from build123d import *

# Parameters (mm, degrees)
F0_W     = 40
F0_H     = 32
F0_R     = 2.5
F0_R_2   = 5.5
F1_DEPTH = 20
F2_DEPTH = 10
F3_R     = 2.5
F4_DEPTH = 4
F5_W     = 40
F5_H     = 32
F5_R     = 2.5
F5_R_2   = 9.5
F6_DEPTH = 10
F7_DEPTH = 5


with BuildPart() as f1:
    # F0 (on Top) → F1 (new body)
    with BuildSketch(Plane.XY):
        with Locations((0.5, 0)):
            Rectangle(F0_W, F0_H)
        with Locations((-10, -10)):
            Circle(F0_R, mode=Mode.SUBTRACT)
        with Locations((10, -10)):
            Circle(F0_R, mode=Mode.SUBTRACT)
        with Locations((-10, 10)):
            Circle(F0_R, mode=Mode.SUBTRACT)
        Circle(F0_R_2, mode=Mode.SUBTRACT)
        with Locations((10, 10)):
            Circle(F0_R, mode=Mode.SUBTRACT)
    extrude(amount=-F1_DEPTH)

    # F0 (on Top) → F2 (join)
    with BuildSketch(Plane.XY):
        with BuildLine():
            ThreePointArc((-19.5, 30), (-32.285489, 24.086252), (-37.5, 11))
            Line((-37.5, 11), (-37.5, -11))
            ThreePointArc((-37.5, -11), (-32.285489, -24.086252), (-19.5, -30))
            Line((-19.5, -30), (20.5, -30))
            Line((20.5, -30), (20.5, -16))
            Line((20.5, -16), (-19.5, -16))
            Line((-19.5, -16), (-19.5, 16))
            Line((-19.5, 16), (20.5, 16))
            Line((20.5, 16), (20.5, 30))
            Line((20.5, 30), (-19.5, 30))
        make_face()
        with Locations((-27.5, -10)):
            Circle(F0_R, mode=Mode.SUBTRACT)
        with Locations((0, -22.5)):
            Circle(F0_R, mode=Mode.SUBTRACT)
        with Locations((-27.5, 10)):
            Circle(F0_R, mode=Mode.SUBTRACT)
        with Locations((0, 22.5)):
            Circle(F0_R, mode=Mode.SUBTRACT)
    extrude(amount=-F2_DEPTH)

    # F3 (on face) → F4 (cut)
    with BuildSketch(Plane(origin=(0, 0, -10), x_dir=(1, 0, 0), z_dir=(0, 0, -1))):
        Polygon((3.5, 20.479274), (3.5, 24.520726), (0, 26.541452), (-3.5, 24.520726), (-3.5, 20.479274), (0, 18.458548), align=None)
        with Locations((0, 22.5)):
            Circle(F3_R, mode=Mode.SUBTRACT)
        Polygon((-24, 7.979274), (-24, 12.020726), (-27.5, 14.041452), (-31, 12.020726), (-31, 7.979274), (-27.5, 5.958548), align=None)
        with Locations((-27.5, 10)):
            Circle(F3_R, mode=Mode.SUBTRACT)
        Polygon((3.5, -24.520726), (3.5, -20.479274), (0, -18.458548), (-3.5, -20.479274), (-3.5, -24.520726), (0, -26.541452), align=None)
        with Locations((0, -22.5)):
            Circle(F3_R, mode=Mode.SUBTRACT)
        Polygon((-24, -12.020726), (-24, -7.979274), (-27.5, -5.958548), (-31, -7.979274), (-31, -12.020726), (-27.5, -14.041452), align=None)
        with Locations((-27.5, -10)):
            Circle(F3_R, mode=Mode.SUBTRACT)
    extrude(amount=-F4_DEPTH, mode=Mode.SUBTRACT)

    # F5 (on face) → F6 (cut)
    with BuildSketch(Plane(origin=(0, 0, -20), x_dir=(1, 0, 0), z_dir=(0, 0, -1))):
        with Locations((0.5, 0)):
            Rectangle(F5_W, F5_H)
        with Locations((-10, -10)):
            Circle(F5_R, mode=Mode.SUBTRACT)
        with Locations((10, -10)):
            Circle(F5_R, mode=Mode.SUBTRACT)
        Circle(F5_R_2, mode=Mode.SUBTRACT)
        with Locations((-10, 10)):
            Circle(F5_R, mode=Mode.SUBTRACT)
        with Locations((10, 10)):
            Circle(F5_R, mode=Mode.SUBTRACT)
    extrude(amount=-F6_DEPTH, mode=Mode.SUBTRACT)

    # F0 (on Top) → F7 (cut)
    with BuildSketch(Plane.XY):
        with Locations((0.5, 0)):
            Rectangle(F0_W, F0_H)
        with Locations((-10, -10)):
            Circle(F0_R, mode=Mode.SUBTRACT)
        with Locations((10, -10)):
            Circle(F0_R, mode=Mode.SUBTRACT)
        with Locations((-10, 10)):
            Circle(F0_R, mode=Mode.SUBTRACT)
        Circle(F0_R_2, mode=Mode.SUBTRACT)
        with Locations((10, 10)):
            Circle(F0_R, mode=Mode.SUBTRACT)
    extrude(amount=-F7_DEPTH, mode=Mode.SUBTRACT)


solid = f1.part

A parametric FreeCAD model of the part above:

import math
import FreeCAD as App
import Part
import Sketcher
from FreeCAD import Vector
Q = App.Units.Quantity

doc = App.newDocument("Part")
body = doc.addObject("PartDesign::Body", "Body")

sketch1 = body.newObject("Sketcher::SketchObject", "Sketch")
sketch1.AttachmentSupport = (doc.getObject("XY_Plane"), [""])
sketch1.MapMode = "FlatFace"
sketch1.addGeometry([
    Part.LineSegment(Vector(-19.5, 16, 0), Vector(-19.5, -16, 0)),
    Part.LineSegment(Vector(-19.5, -16, 0), Vector(20.5, -16, 0)),
    Part.LineSegment(Vector(20.5, -16, 0), Vector(20.5, 16, 0)),
    Part.LineSegment(Vector(20.5, 16, 0), Vector(-19.5, 16, 0)),
    Part.Circle(Vector(-10, -10, 0), Vector(0, 0, 1), 2.5),
    Part.Circle(Vector(10, -10, 0), Vector(0, 0, 1), 2.5),
    Part.Circle(Vector(-10, 10, 0), Vector(0, 0, 1), 2.5),
    Part.Circle(Vector(0, 0, 0), Vector(0, 0, 1), 5.5),
    Part.Circle(Vector(10, 10, 0), Vector(0, 0, 1), 2.5),
], False)
sketch1.addConstraint([
    Sketcher.Constraint("Coincident", 0, 2, 1, 1),
    Sketcher.Constraint("Coincident", 1, 2, 2, 1),
    Sketcher.Constraint("Coincident", 2, 2, 3, 1),
    Sketcher.Constraint("Coincident", 3, 2, 0, 1),
    Sketcher.Constraint("Vertical", 0),
    Sketcher.Constraint("Horizontal", 1),
    Sketcher.Constraint("Vertical", 2),
    Sketcher.Constraint("Horizontal", 3),
    Sketcher.Constraint("Coincident", 7, 3, -1, 1),
    Sketcher.Constraint("Equal", 4, 5),
    Sketcher.Constraint("Equal", 5, 6),
    Sketcher.Constraint("Equal", 6, 8),
    Sketcher.Constraint("Symmetric", 5, 3, 6, 3, -1, 1),
    Sketcher.Constraint("Symmetric", 4, 3, 8, 3, -1, 1),
    Sketcher.Constraint("Symmetric", 4, 3, 5, 3, -2),
    Sketcher.Constraint("Diameter", 4, Q("5 mm")),
    Sketcher.Constraint("Diameter", 7, Q("11 mm")),
    Sketcher.Constraint("DistanceX", 1, 1, 1, 2, Q("40 mm")),
    Sketcher.Constraint("DistanceY", 0, 2, 0, 1, Q("32 mm")),
    Sketcher.Constraint("DistanceX", 4, 3, -1, 1, Q("10 mm")),
    Sketcher.Constraint("DistanceY", 4, 3, -1, 1, Q("10 mm")),
    Sketcher.Constraint("DistanceY", 0, 2, -1, 1, Q("16 mm")),
    Sketcher.Constraint("DistanceX", 0, 2, -1, 1, Q("19.5 mm")),
])
pad1 = body.newObject("PartDesign::Pad", "Pad")
pad1.Profile = sketch1
pad1.Length = 20
pad1.Reversed = True

sketch2 = body.newObject("Sketcher::SketchObject", "Sketch001")
sketch2.AttachmentSupport = (doc.getObject("XY_Plane"), [""])
sketch2.MapMode = "FlatFace"
sketch2.addGeometry([
    Part.ArcOfCircle(Part.Circle(Vector(-18.5, 11, 0), Vector(0, 0, 1), 19), math.radians(93), math.radians(180)),
    Part.LineSegment(Vector(-37.5, 11, 0), Vector(-37.5, -11, 0)),
    Part.ArcOfCircle(Part.Circle(Vector(-18.5, -11, 0), Vector(0, 0, 1), 19), math.radians(180), math.radians(267)),
    Part.LineSegment(Vector(-19.5, -30, 0), Vector(20.5, -30, 0)),
    Part.LineSegment(Vector(20.5, -30, 0), Vector(20.5, -16, 0)),
    Part.LineSegment(Vector(20.5, -16, 0), Vector(-19.5, -16, 0)),
    Part.LineSegment(Vector(-19.5, -16, 0), Vector(-19.5, 16, 0)),
    Part.LineSegment(Vector(-19.5, 16, 0), Vector(20.5, 16, 0)),
    Part.LineSegment(Vector(20.5, 16, 0), Vector(20.5, 30, 0)),
    Part.LineSegment(Vector(20.5, 30, 0), Vector(-19.5, 30, 0)),
    Part.Circle(Vector(-27.5, -10, 0), Vector(0, 0, 1), 2.5),
    Part.Circle(Vector(0, -22.5, 0), Vector(0, 0, 1), 2.5),
    Part.Circle(Vector(-27.5, 10, 0), Vector(0, 0, 1), 2.5),
    Part.Circle(Vector(0, 22.5, 0), Vector(0, 0, 1), 2.5),
], False)
sketch2.addConstraint([
    Sketcher.Constraint("Tangent", 0, 2, 1, 1),
    Sketcher.Constraint("Tangent", 1, 2, 2, 1),
    Sketcher.Constraint("Coincident", 2, 2, 3, 1),
    Sketcher.Constraint("Coincident", 3, 2, 4, 1),
    Sketcher.Constraint("Coincident", 4, 2, 5, 1),
    Sketcher.Constraint("Coincident", 5, 2, 6, 1),
    Sketcher.Constraint("Coincident", 6, 2, 7, 1),
    Sketcher.Constraint("Coincident", 7, 2, 8, 1),
    Sketcher.Constraint("Coincident", 8, 2, 9, 1),
    Sketcher.Constraint("Coincident", 9, 2, 0, 1),
    Sketcher.Constraint("Vertical", 1),
    Sketcher.Constraint("Horizontal", 3),
    Sketcher.Constraint("Vertical", 4),
    Sketcher.Constraint("Horizontal", 5),
    Sketcher.Constraint("Vertical", 6),
    Sketcher.Constraint("Horizontal", 7),
    Sketcher.Constraint("Vertical", 8),
    Sketcher.Constraint("Horizontal", 9),
    Sketcher.Constraint("Equal", 0, 2),
    Sketcher.Constraint("Equal", 10, 11),
    Sketcher.Constraint("Equal", 11, 12),
    Sketcher.Constraint("Equal", 12, 13),
    Sketcher.Constraint("Symmetric", 11, 3, 13, 3, -1, 1),
    Sketcher.Constraint("Symmetric", 10, 3, 12, 3, -1),
    Sketcher.Constraint("Symmetric", 4, 2, 7, 2, -1),
    Sketcher.Constraint("Symmetric", 2, 2, 9, 2, -1),
    Sketcher.Constraint("PointOnObject", 11, 3, -2),
    Sketcher.Constraint("Vertical", 2, 2, 5, 2),
    Sketcher.Constraint("Diameter", 10, Q("5 mm")),
    Sketcher.Constraint("DistanceX", 3, 1, 3, 2, Q("40 mm")),
    Sketcher.Constraint("DistanceY", 1, 2, 1, 1, Q("22 mm")),
    Sketcher.Constraint("DistanceY", 4, 1, 4, 2, Q("14 mm")),
    Sketcher.Constraint("DistanceY", 6, 1, 6, 2, Q("32 mm")),
    Sketcher.Constraint("DistanceY", 10, 3, -1, 1, Q("10 mm")),
    Sketcher.Constraint("DistanceY", 11, 3, 13, 3, Q("45 mm")),
    Sketcher.Constraint("DistanceX", 0, 2, 12, 3, Q("10 mm")),
    Sketcher.Constraint("DistanceX", 10, 3, 2, 2, Q("8 mm")),
    Sketcher.Constraint("DistanceX", 10, 3, -1, 1, Q("27.5 mm")),
])
pad2 = body.newObject("PartDesign::Pad", "Pad001")
pad2.Profile = sketch2
pad2.Length = 10
pad2.Reversed = True

sketch3 = body.newObject("Sketcher::SketchObject", "Sketch002")
sketch3.AttachmentSupport = (doc.getObject("XY_Plane"), [""])
sketch3.MapMode = "FlatFace"
sketch3.AttachmentOffset = App.Placement(Vector(0, 0, -10), App.Rotation())
sketch3.addGeometry([
    Part.LineSegment(Vector(3.5, -20.5, 0), Vector(3.5, -24.5, 0)),
    Part.LineSegment(Vector(3.5, -24.5, 0), Vector(0, -26.5, 0)),
    Part.LineSegment(Vector(0, -26.5, 0), Vector(-3.5, -24.5, 0)),
    Part.LineSegment(Vector(-3.5, -24.5, 0), Vector(-3.5, -20.5, 0)),
    Part.LineSegment(Vector(-3.5, -20.5, 0), Vector(0, -18.5, 0)),
    Part.LineSegment(Vector(0, -18.5, 0), Vector(3.5, -20.5, 0)),
    Part.Circle(Vector(0, -22.5, 0), Vector(0, 0, 1), 2.5),
    Part.LineSegment(Vector(-24, -8, 0), Vector(-24, -12, 0)),
    Part.LineSegment(Vector(-24, -12, 0), Vector(-27.5, -14, 0)),
    Part.LineSegment(Vector(-27.5, -14, 0), Vector(-31, -12, 0)),
    Part.LineSegment(Vector(-31, -12, 0), Vector(-31, -8, 0)),
    Part.LineSegment(Vector(-31, -8, 0), Vector(-27.5, -6, 0)),
    Part.LineSegment(Vector(-27.5, -6, 0), Vector(-24, -8, 0)),
    Part.Circle(Vector(-27.5, -10, 0), Vector(0, 0, 1), 2.5),
    Part.LineSegment(Vector(3.5, 24.5, 0), Vector(3.5, 20.5, 0)),
    Part.LineSegment(Vector(3.5, 20.5, 0), Vector(0, 18.5, 0)),
    Part.LineSegment(Vector(0, 18.5, 0), Vector(-3.5, 20.5, 0)),
    Part.LineSegment(Vector(-3.5, 20.5, 0), Vector(-3.5, 24.5, 0)),
    Part.LineSegment(Vector(-3.5, 24.5, 0), Vector(0, 26.5, 0)),
    Part.LineSegment(Vector(0, 26.5, 0), Vector(3.5, 24.5, 0)),
    Part.Circle(Vector(0, 22.5, 0), Vector(0, 0, 1), 2.5),
    Part.LineSegment(Vector(-24, 12, 0), Vector(-24, 8, 0)),
    Part.LineSegment(Vector(-24, 8, 0), Vector(-27.5, 6, 0)),
    Part.LineSegment(Vector(-27.5, 6, 0), Vector(-31, 8, 0)),
    Part.LineSegment(Vector(-31, 8, 0), Vector(-31, 12, 0)),
    Part.LineSegment(Vector(-31, 12, 0), Vector(-27.5, 14, 0)),
    Part.LineSegment(Vector(-27.5, 14, 0), Vector(-24, 12, 0)),
    Part.Circle(Vector(-27.5, 10, 0), Vector(0, 0, 1), 2.5),
], False)
sketch3.addConstraint([
    Sketcher.Constraint("Coincident", 0, 2, 1, 1),
    Sketcher.Constraint("Coincident", 1, 2, 2, 1),
    Sketcher.Constraint("Coincident", 2, 2, 3, 1),
    Sketcher.Constraint("Coincident", 3, 2, 4, 1),
    Sketcher.Constraint("Coincident", 4, 2, 5, 1),
    Sketcher.Constraint("Coincident", 5, 2, 0, 1),
    Sketcher.Constraint("Coincident", 7, 2, 8, 1),
    Sketcher.Constraint("Coincident", 8, 2, 9, 1),
    Sketcher.Constraint("Coincident", 9, 2, 10, 1),
    Sketcher.Constraint("Coincident", 10, 2, 11, 1),
    Sketcher.Constraint("Coincident", 11, 2, 12, 1),
    Sketcher.Constraint("Coincident", 12, 2, 7, 1),
    Sketcher.Constraint("Coincident", 14, 2, 15, 1),
    Sketcher.Constraint("Coincident", 15, 2, 16, 1),
    Sketcher.Constraint("Coincident", 16, 2, 17, 1),
    Sketcher.Constraint("Coincident", 17, 2, 18, 1),
    Sketcher.Constraint("Coincident", 18, 2, 19, 1),
    Sketcher.Constraint("Coincident", 19, 2, 14, 1),
    Sketcher.Constraint("Coincident", 21, 2, 22, 1),
    Sketcher.Constraint("Coincident", 22, 2, 23, 1),
    Sketcher.Constraint("Coincident", 23, 2, 24, 1),
    Sketcher.Constraint("Coincident", 24, 2, 25, 1),
    Sketcher.Constraint("Coincident", 25, 2, 26, 1),
    Sketcher.Constraint("Coincident", 26, 2, 21, 1),
    Sketcher.Constraint("Vertical", 0),
    Sketcher.Constraint("Vertical", 3),
    Sketcher.Constraint("Vertical", 7),
    Sketcher.Constraint("Vertical", 10),
    Sketcher.Constraint("Vertical", 14),
    Sketcher.Constraint("Vertical", 17),
    Sketcher.Constraint("Vertical", 21),
    Sketcher.Constraint("Vertical", 24),
    Sketcher.Constraint("Equal", 6, 13),
    Sketcher.Constraint("Equal", 13, 20),
    Sketcher.Constraint("Equal", 20, 27),
    Sketcher.Constraint("Symmetric", 6, 3, 20, 3, -1, 1),
    Sketcher.Constraint("Symmetric", 3, 2, 14, 2, -1, 1),
    Sketcher.Constraint("Symmetric", 4, 2, 15, 2, -1, 1),
    Sketcher.Constraint("Symmetric", 5, 2, 16, 2, -1, 1),
    Sketcher.Constraint("Symmetric", 1, 2, 18, 2, -1, 1),
    Sketcher.Constraint("Symmetric", 0, 2, 2, 2, -2),
    Sketcher.Constraint("Symmetric", 13, 3, 27, 3, -1),
    Sketcher.Constraint("Symmetric", 12, 2, 21, 2, -1),
    Sketcher.Constraint("Symmetric", 11, 2, 22, 2, -1),
    Sketcher.Constraint("Symmetric", 10, 2, 23, 2, -1),
    Sketcher.Constraint("Symmetric", 8, 2, 25, 2, -1),
    Sketcher.Constraint("PointOnObject", 6, 3, -2),
    Sketcher.Constraint("PointOnObject", 1, 2, -2),
    Sketcher.Constraint("PointOnObject", 4, 2, -2),
    Sketcher.Constraint("Parallel", 1, 4),
    Sketcher.Constraint("Parallel", 2, 5),
    Sketcher.Constraint("Parallel", 4, 8),
    Sketcher.Constraint("Parallel", 5, 9),
    Sketcher.Constraint("Parallel", 8, 11),
    Sketcher.Constraint("Parallel", 9, 12),
    Sketcher.Constraint("Parallel", 15, 18),
    Sketcher.Constraint("Parallel", 16, 19),
    Sketcher.Constraint("Parallel", 22, 25),
    Sketcher.Constraint("Parallel", 23, 26),
    Sketcher.Constraint("Horizontal", 7, 2, 9, 2),
    Sketcher.Constraint("Horizontal", 10, 2, 12, 2),
    Sketcher.Constraint("Vertical", 27, 3, 8, 2),
    Sketcher.Constraint("Equal", 3, 7),
    Sketcher.Constraint("Equal", 5, 8),
    Sketcher.Constraint("Diameter", 6, Q("5 mm")),
    Sketcher.Constraint("Angle", 1, Q("-149.999999 deg")),
    Sketcher.Constraint("DistanceY", 13, 3, -1, 1, Q("10 mm")),
    Sketcher.Constraint("DistanceX", 7, 2, -1, 1, Q("24 mm")),
    Sketcher.Constraint("DistanceX", 9, 2, -1, 1, Q("31 mm")),
    Sketcher.Constraint("DistanceY", 6, 3, 20, 3, Q("45 mm")),
    Sketcher.Constraint("DistanceY", 2, 2, 7, 2, Q("12.5 mm")),
    Sketcher.Constraint("DistanceY", 0, 2, 0, 1, Q("4.041452 mm")),
    Sketcher.Constraint("DistanceY", 1, 2, -1, 1, Q("26.541452 mm")),
])
pocket1 = body.newObject("PartDesign::Pocket", "Pocket")
pocket1.Profile = sketch3
pocket1.Length = 4
pocket1.Reversed = True

sketch4 = body.newObject("Sketcher::SketchObject", "Sketch003")
sketch4.AttachmentSupport = (doc.getObject("XY_Plane"), [""])
sketch4.MapMode = "FlatFace"
sketch4.AttachmentOffset = App.Placement(Vector(0, 0, -20), App.Rotation())
sketch4.addGeometry([
    Part.LineSegment(Vector(-19.5, -16, 0), Vector(-19.5, 16, 0)),
    Part.LineSegment(Vector(-19.5, 16, 0), Vector(20.5, 16, 0)),
    Part.LineSegment(Vector(20.5, 16, 0), Vector(20.5, -16, 0)),
    Part.LineSegment(Vector(20.5, -16, 0), Vector(-19.5, -16, 0)),
    Part.Circle(Vector(-10, 10, 0), Vector(0, 0, 1), 2.5),
    Part.Circle(Vector(10, 10, 0), Vector(0, 0, 1), 2.5),
    Part.Circle(Vector(-10, -10, 0), Vector(0, 0, 1), 2.5),
    Part.Circle(Vector(0, 0, 0), Vector(0, 0, 1), 9.5),
    Part.Circle(Vector(10, -10, 0), Vector(0, 0, 1), 2.5),
], False)
sketch4.addConstraint([
    Sketcher.Constraint("Coincident", 0, 2, 1, 1),
    Sketcher.Constraint("Coincident", 1, 2, 2, 1),
    Sketcher.Constraint("Coincident", 2, 2, 3, 1),
    Sketcher.Constraint("Coincident", 3, 2, 0, 1),
    Sketcher.Constraint("Vertical", 0),
    Sketcher.Constraint("Horizontal", 1),
    Sketcher.Constraint("Vertical", 2),
    Sketcher.Constraint("Horizontal", 3),
    Sketcher.Constraint("Coincident", 7, 3, -1, 1),
    Sketcher.Constraint("Equal", 4, 5),
    Sketcher.Constraint("Equal", 5, 6),
    Sketcher.Constraint("Equal", 6, 8),
    Sketcher.Constraint("Symmetric", 5, 3, 6, 3, -1, 1),
    Sketcher.Constraint("Symmetric", 4, 3, 8, 3, -1, 1),
    Sketcher.Constraint("Symmetric", 4, 3, 5, 3, -2),
    Sketcher.Constraint("Diameter", 4, Q("5 mm")),
    Sketcher.Constraint("Diameter", 7, Q("19 mm")),
    Sketcher.Constraint("DistanceX", 1, 1, 1, 2, Q("40 mm")),
    Sketcher.Constraint("DistanceY", 0, 1, 0, 2, Q("32 mm")),
    Sketcher.Constraint("DistanceX", 4, 3, -1, 1, Q("10 mm")),
    Sketcher.Constraint("DistanceY", -1, 1, 4, 3, Q("10 mm")),
    Sketcher.Constraint("DistanceY", -1, 1, 0, 2, Q("16 mm")),
    Sketcher.Constraint("DistanceX", 0, 2, -1, 1, Q("19.5 mm")),
])
pocket2 = body.newObject("PartDesign::Pocket", "Pocket001")
pocket2.Profile = sketch4
pocket2.Length = 10
pocket2.Reversed = True

sketch5 = body.newObject("Sketcher::SketchObject", "Sketch004")
sketch5.AttachmentSupport = (doc.getObject("XY_Plane"), [""])
sketch5.MapMode = "FlatFace"
sketch5.addGeometry([
    Part.LineSegment(Vector(-19.5, 16, 0), Vector(-19.5, -16, 0)),
    Part.LineSegment(Vector(-19.5, -16, 0), Vector(20.5, -16, 0)),
    Part.LineSegment(Vector(20.5, -16, 0), Vector(20.5, 16, 0)),
    Part.LineSegment(Vector(20.5, 16, 0), Vector(-19.5, 16, 0)),
    Part.Circle(Vector(-10, -10, 0), Vector(0, 0, 1), 2.5),
    Part.Circle(Vector(10, -10, 0), Vector(0, 0, 1), 2.5),
    Part.Circle(Vector(-10, 10, 0), Vector(0, 0, 1), 2.5),
    Part.Circle(Vector(0, 0, 0), Vector(0, 0, 1), 5.5),
    Part.Circle(Vector(10, 10, 0), Vector(0, 0, 1), 2.5),
], False)
sketch5.addConstraint([
    Sketcher.Constraint("Coincident", 0, 2, 1, 1),
    Sketcher.Constraint("Coincident", 1, 2, 2, 1),
    Sketcher.Constraint("Coincident", 2, 2, 3, 1),
    Sketcher.Constraint("Coincident", 3, 2, 0, 1),
    Sketcher.Constraint("Vertical", 0),
    Sketcher.Constraint("Horizontal", 1),
    Sketcher.Constraint("Vertical", 2),
    Sketcher.Constraint("Horizontal", 3),
    Sketcher.Constraint("Coincident", 7, 3, -1, 1),
    Sketcher.Constraint("Equal", 4, 5),
    Sketcher.Constraint("Equal", 5, 6),
    Sketcher.Constraint("Equal", 6, 8),
    Sketcher.Constraint("Symmetric", 5, 3, 6, 3, -1, 1),
    Sketcher.Constraint("Symmetric", 4, 3, 8, 3, -1, 1),
    Sketcher.Constraint("Symmetric", 4, 3, 5, 3, -2),
    Sketcher.Constraint("Diameter", 4, Q("5 mm")),
    Sketcher.Constraint("Diameter", 7, Q("11 mm")),
    Sketcher.Constraint("DistanceX", 1, 1, 1, 2, Q("40 mm")),
    Sketcher.Constraint("DistanceY", 0, 2, 0, 1, Q("32 mm")),
    Sketcher.Constraint("DistanceX", 4, 3, -1, 1, Q("10 mm")),
    Sketcher.Constraint("DistanceY", 4, 3, -1, 1, Q("10 mm")),
    Sketcher.Constraint("DistanceY", 0, 2, -1, 1, Q("16 mm")),
    Sketcher.Constraint("DistanceX", 0, 2, -1, 1, Q("19.5 mm")),
])
pocket3 = body.newObject("PartDesign::Pocket", "Pocket002")
pocket3.Profile = sketch5
pocket3.Length = 5

doc.recompute()
